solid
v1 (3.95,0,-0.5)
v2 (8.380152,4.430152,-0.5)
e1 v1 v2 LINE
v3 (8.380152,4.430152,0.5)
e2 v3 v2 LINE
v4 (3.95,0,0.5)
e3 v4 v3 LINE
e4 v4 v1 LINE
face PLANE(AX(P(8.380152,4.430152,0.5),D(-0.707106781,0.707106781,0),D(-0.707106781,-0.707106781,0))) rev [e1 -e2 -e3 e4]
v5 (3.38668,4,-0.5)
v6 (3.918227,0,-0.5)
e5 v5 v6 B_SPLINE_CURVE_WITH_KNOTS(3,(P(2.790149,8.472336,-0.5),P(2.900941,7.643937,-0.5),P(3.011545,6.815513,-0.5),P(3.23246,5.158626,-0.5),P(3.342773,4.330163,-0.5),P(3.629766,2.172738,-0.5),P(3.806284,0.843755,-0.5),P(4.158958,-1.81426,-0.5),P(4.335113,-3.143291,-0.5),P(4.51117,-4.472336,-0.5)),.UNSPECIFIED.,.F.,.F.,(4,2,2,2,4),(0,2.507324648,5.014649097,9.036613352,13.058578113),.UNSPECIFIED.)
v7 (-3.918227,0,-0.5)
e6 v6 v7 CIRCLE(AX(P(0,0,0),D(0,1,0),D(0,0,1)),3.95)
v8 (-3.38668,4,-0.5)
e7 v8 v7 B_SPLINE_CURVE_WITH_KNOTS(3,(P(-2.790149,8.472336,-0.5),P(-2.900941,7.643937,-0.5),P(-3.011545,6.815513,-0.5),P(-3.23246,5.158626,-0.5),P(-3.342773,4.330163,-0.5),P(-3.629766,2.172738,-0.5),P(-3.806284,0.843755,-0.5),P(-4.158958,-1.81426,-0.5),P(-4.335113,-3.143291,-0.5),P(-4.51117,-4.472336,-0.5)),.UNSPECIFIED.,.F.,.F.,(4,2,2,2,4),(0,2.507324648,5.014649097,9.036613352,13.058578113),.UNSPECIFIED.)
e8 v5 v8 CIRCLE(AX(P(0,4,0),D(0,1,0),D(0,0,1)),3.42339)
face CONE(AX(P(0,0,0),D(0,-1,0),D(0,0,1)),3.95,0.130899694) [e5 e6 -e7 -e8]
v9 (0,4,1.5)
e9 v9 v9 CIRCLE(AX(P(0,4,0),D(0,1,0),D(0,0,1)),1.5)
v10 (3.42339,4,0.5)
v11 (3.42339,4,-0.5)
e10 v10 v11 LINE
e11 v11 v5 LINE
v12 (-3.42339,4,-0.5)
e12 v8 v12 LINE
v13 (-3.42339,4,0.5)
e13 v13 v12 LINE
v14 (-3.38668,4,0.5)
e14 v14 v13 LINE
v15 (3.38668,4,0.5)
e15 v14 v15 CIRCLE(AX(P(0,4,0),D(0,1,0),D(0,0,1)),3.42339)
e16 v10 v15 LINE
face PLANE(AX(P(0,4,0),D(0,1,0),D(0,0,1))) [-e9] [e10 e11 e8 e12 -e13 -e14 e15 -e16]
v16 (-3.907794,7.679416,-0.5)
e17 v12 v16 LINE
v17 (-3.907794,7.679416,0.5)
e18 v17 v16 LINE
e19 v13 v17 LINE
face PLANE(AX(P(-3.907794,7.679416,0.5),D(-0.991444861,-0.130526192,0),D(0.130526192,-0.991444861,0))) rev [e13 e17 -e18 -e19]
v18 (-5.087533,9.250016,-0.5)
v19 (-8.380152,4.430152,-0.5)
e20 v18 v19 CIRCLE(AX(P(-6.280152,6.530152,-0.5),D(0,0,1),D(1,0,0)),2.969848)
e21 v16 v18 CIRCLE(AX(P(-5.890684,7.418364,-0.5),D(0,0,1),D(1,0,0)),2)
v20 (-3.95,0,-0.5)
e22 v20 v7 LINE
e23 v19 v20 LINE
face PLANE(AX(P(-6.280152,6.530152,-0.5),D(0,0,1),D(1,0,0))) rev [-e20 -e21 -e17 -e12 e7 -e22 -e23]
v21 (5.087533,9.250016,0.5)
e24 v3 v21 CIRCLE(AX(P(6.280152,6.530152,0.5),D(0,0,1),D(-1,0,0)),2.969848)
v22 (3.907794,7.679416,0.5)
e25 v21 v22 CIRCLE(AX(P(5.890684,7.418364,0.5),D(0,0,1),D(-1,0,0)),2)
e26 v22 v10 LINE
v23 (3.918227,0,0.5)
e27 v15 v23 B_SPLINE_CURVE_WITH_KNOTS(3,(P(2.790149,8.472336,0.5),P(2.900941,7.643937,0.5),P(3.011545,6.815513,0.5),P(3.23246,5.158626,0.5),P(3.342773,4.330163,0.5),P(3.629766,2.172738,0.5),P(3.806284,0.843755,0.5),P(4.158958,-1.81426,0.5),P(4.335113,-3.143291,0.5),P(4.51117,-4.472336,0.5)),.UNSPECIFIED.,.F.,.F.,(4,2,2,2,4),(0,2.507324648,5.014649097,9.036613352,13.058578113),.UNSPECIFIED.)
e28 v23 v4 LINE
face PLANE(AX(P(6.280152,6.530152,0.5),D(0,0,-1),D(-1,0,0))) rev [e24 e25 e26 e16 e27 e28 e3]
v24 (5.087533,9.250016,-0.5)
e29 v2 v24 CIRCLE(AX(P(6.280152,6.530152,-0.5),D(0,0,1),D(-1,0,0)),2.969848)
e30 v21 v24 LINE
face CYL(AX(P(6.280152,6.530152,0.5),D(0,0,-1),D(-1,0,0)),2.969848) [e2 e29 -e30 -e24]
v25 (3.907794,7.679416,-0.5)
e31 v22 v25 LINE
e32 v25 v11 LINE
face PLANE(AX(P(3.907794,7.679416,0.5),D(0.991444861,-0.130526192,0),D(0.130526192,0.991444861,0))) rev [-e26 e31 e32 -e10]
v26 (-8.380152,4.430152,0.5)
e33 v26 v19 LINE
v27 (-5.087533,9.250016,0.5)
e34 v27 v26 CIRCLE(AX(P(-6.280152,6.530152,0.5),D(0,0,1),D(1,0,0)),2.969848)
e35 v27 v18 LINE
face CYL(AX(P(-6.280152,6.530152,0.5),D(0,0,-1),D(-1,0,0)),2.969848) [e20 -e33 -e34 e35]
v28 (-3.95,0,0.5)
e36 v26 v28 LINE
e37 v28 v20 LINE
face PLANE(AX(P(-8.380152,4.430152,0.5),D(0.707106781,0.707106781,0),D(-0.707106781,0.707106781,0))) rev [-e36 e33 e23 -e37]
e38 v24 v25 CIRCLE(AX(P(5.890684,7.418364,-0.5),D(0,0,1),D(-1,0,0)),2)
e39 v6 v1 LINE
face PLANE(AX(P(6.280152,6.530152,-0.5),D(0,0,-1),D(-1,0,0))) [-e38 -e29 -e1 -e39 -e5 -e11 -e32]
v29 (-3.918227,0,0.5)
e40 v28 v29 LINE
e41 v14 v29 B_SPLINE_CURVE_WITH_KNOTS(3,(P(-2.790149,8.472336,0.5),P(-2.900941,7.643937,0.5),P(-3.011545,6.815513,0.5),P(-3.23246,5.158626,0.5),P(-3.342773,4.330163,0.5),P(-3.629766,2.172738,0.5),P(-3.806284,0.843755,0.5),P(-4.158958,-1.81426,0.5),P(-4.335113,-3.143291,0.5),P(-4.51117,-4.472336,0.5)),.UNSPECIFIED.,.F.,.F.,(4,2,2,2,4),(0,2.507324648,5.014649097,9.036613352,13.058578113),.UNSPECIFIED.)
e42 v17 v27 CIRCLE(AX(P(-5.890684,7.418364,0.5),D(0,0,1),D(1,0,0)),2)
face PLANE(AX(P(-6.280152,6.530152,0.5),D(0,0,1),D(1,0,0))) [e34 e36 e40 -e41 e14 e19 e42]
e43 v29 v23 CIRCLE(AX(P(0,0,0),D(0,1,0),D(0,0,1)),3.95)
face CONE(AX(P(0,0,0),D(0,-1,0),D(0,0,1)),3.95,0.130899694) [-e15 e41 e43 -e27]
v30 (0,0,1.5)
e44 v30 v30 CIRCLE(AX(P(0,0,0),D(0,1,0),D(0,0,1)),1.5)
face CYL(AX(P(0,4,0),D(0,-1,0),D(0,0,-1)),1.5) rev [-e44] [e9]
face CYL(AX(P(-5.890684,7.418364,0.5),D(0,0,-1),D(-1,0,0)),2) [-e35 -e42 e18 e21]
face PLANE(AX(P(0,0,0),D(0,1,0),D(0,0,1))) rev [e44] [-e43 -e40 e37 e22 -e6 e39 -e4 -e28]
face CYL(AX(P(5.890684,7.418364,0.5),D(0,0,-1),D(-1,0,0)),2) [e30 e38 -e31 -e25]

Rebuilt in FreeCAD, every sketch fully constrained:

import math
import FreeCAD as App
import Part
import Sketcher
Q = App.Units.Quantity

doc = App.newDocument("Part")
body = doc.addObject("PartDesign::Body", "Body")

# Sketch on XZ plane
sketch1 = doc.addObject("Sketcher::SketchObject", "Sketch")
body.addObject(sketch1)
sketch1.AttachmentSupport = (doc.XZ_Plane, [""])
sketch1.MapMode = "FlatFace"
sketch1.addGeometry(Part.Circle(App.Vector(0, 0, 0), App.Vector(0, 0, 1), 3.95), False)
sketch1.addConstraint(Sketcher.Constraint("Coincident", 0, 3, -1, 1))
sketch1.addConstraint(Sketcher.Constraint("Diameter", 0, Q("7.9 mm")))
pad1 = doc.addObject("PartDesign::Pad", "Pad")
body.addObject(pad1)
pad1.Profile = sketch1
pad1.Length = 4
pad1.Reversed = True
pad1.TaperAngle = -7.5

# Sketch on XZ plane
sketch2 = doc.addObject("Sketcher::SketchObject", "Sketch001")
body.addObject(sketch2)
sketch2.AttachmentSupport = (doc.XZ_Plane, [""])
sketch2.MapMode = "FlatFace"
sketch2.addGeometry(Part.Circle(App.Vector(0, 0, 0), App.Vector(0, 0, 1), 1.5), False)
sketch2.addConstraint(Sketcher.Constraint("Coincident", 0, 3, -1, 1))
sketch2.addConstraint(Sketcher.Constraint("Diameter", 0, Q("3 mm")))
pocket1 = doc.addObject("PartDesign::Pocket", "Pocket")
body.addObject(pocket1)
pocket1.Profile = sketch2
pocket1.Length = 4

# Sketch on XY plane
sketch3 = doc.addObject("Sketcher::SketchObject", "Sketch002")
body.addObject(sketch3)
sketch3.AttachmentSupport = (doc.XY_Plane, [""])
sketch3.MapMode = "FlatFace"
sketch3.addGeometry(Part.LineSegment(App.Vector(3.95, 0, 0), App.Vector(8.380152, 4.430152, 0)), False)
sketch3.addGeometry(Part.ArcOfCircle(Part.Circle(App.Vector(6.280152, 6.530152, 0), App.Vector(0, 0, 1), 2.969848), math.radians(-45), math.radians(113.676711)), False)
sketch3.addGeometry(Part.ArcOfCircle(Part.Circle(App.Vector(5.890684, 7.418364, 0), App.Vector(0, 0, 1), 2), math.radians(113.676711), math.radians(172.5)), False)
sketch3.addGeometry(Part.LineSegment(App.Vector(3.907794, 7.679416, 0), App.Vector(3.42339, 4, 0)), False)
sketch3.addGeometry(Part.LineSegment(App.Vector(3.42339, 4, 0), App.Vector(1.95, 4, 0)), False)
sketch3.addGeometry(Part.LineSegment(App.Vector(1.95, 4, 0), App.Vector(1.95, 0, 0)), False)
sketch3.addGeometry(Part.LineSegment(App.Vector(1.95, 0, 0), App.Vector(3.95, 0, 0)), False)
sketch3.addGeometry(Part.LineSegment(App.Vector(-1.95, 0, 0), App.Vector(-1.95, 4, 0)), False)
sketch3.addGeometry(Part.LineSegment(App.Vector(-1.95, 4, 0), App.Vector(-3.42339, 4, 0)), False)
sketch3.addGeometry(Part.LineSegment(App.Vector(-3.42339, 4, 0), App.Vector(-3.907794, 7.679416, 0)), False)
sketch3.addGeometry(Part.ArcOfCircle(Part.Circle(App.Vector(-5.890684, 7.418364, 0), App.Vector(0, 0, 1), 2), math.radians(7.5), math.radians(66.323289)), False)
sketch3.addGeometry(Part.ArcOfCircle(Part.Circle(App.Vector(-6.280152, 6.530152, 0), App.Vector(0, 0, 1), 2.969848), math.radians(66.323289), math.radians(225)), False)
sketch3.addGeometry(Part.LineSegment(App.Vector(-8.380152, 4.430152, 0), App.Vector(-3.95, 0, 0)), False)
sketch3.addGeometry(Part.LineSegment(App.Vector(-3.95, 0, 0), App.Vector(-1.95, 0, 0)), False)
sketch3.addConstraint(Sketcher.Constraint("Tangent", 0, 2, 1, 1))
sketch3.addConstraint(Sketcher.Constraint("Tangent", 1, 2, 2, 1))
sketch3.addConstraint(Sketcher.Constraint("Tangent", 2, 2, 3, 1))
sketch3.addConstraint(Sketcher.Constraint("Coincident", 3, 2, 4, 1))
sketch3.addConstraint(Sketcher.Constraint("Coincident", 4, 2, 5, 1))
sketch3.addConstraint(Sketcher.Constraint("Coincident", 5, 2, 6, 1))
sketch3.addConstraint(Sketcher.Constraint("Coincident", 6, 2, 0, 1))
sketch3.addConstraint(Sketcher.Constraint("Coincident", 7, 2, 8, 1))
sketch3.addConstraint(Sketcher.Constraint("Coincident", 8, 2, 9, 1))
sketch3.addConstraint(Sketcher.Constraint("Tangent", 9, 2, 10, 1))
sketch3.addConstraint(Sketcher.Constraint("Tangent", 10, 2, 11, 1))
sketch3.addConstraint(Sketcher.Constraint("Tangent", 11, 2, 12, 1))
sketch3.addConstraint(Sketcher.Constraint("Coincident", 12, 2, 13, 1))
sketch3.addConstraint(Sketcher.Constraint("Coincident", 13, 2, 7, 1))
sketch3.addConstraint(Sketcher.Constraint("Horizontal", 4))
sketch3.addConstraint(Sketcher.Constraint("Vertical", 5))
sketch3.addConstraint(Sketcher.Constraint("Horizontal", 6))
sketch3.addConstraint(Sketcher.Constraint("Vertical", 7))
sketch3.addConstraint(Sketcher.Constraint("Horizontal", 8))
sketch3.addConstraint(Sketcher.Constraint("Horizontal", 13))
sketch3.addConstraint(Sketcher.Constraint("Equal", 2, 10))
sketch3.addConstraint(Sketcher.Constraint("Equal", 1, 11))
sketch3.addConstraint(Sketcher.Constraint("Symmetric", 6, 2, 12, 2, -1, 1))
sketch3.addConstraint(Sketcher.Constraint("Symmetric", 2, 3, 10, 3, -2))
sketch3.addConstraint(Sketcher.Constraint("Symmetric", 4, 2, 7, 2, -2))
sketch3.addConstraint(Sketcher.Constraint("Symmetric", 0, 2, 11, 2, -2))
sketch3.addConstraint(Sketcher.Constraint("Perpendicular", 0, 12))
sketch3.addConstraint(Sketcher.Constraint("Horizontal", 2, 2, 9, 2))
sketch3.addConstraint(Sketcher.Constraint("Radius", 2, Q("2 mm")))
sketch3.addConstraint(Sketcher.Constraint("DistanceX", 6, 1, 6, 2, Q("2 mm")))
sketch3.addConstraint(Sketcher.Constraint("DistanceY", 5, 2, 5, 1, Q("4 mm")))
sketch3.addConstraint(Sketcher.Constraint("Angle", 3, Q("-97.5 deg")))
sketch3.addConstraint(Sketcher.Constraint("DistanceX", 1, 3, 0, 2, Q("2.1 mm")))
sketch3.addConstraint(Sketcher.Constraint("DistanceX", 7, 2, 4, 2, Q("3.9 mm")))
sketch3.addConstraint(Sketcher.Constraint("DistanceX", 4, 2, 4, 1, Q("1.47339 mm")))
sketch3.addConstraint(Sketcher.Constraint("DistanceY", 2, 2, 1, 2, Q("1.570599 mm")))
pad2 = doc.addObject("PartDesign::Pad", "Pad001")
body.addObject(pad2)
pad2.Profile = sketch3
pad2.Length = 1
pad2.Midplane = True

doc.recompute()
